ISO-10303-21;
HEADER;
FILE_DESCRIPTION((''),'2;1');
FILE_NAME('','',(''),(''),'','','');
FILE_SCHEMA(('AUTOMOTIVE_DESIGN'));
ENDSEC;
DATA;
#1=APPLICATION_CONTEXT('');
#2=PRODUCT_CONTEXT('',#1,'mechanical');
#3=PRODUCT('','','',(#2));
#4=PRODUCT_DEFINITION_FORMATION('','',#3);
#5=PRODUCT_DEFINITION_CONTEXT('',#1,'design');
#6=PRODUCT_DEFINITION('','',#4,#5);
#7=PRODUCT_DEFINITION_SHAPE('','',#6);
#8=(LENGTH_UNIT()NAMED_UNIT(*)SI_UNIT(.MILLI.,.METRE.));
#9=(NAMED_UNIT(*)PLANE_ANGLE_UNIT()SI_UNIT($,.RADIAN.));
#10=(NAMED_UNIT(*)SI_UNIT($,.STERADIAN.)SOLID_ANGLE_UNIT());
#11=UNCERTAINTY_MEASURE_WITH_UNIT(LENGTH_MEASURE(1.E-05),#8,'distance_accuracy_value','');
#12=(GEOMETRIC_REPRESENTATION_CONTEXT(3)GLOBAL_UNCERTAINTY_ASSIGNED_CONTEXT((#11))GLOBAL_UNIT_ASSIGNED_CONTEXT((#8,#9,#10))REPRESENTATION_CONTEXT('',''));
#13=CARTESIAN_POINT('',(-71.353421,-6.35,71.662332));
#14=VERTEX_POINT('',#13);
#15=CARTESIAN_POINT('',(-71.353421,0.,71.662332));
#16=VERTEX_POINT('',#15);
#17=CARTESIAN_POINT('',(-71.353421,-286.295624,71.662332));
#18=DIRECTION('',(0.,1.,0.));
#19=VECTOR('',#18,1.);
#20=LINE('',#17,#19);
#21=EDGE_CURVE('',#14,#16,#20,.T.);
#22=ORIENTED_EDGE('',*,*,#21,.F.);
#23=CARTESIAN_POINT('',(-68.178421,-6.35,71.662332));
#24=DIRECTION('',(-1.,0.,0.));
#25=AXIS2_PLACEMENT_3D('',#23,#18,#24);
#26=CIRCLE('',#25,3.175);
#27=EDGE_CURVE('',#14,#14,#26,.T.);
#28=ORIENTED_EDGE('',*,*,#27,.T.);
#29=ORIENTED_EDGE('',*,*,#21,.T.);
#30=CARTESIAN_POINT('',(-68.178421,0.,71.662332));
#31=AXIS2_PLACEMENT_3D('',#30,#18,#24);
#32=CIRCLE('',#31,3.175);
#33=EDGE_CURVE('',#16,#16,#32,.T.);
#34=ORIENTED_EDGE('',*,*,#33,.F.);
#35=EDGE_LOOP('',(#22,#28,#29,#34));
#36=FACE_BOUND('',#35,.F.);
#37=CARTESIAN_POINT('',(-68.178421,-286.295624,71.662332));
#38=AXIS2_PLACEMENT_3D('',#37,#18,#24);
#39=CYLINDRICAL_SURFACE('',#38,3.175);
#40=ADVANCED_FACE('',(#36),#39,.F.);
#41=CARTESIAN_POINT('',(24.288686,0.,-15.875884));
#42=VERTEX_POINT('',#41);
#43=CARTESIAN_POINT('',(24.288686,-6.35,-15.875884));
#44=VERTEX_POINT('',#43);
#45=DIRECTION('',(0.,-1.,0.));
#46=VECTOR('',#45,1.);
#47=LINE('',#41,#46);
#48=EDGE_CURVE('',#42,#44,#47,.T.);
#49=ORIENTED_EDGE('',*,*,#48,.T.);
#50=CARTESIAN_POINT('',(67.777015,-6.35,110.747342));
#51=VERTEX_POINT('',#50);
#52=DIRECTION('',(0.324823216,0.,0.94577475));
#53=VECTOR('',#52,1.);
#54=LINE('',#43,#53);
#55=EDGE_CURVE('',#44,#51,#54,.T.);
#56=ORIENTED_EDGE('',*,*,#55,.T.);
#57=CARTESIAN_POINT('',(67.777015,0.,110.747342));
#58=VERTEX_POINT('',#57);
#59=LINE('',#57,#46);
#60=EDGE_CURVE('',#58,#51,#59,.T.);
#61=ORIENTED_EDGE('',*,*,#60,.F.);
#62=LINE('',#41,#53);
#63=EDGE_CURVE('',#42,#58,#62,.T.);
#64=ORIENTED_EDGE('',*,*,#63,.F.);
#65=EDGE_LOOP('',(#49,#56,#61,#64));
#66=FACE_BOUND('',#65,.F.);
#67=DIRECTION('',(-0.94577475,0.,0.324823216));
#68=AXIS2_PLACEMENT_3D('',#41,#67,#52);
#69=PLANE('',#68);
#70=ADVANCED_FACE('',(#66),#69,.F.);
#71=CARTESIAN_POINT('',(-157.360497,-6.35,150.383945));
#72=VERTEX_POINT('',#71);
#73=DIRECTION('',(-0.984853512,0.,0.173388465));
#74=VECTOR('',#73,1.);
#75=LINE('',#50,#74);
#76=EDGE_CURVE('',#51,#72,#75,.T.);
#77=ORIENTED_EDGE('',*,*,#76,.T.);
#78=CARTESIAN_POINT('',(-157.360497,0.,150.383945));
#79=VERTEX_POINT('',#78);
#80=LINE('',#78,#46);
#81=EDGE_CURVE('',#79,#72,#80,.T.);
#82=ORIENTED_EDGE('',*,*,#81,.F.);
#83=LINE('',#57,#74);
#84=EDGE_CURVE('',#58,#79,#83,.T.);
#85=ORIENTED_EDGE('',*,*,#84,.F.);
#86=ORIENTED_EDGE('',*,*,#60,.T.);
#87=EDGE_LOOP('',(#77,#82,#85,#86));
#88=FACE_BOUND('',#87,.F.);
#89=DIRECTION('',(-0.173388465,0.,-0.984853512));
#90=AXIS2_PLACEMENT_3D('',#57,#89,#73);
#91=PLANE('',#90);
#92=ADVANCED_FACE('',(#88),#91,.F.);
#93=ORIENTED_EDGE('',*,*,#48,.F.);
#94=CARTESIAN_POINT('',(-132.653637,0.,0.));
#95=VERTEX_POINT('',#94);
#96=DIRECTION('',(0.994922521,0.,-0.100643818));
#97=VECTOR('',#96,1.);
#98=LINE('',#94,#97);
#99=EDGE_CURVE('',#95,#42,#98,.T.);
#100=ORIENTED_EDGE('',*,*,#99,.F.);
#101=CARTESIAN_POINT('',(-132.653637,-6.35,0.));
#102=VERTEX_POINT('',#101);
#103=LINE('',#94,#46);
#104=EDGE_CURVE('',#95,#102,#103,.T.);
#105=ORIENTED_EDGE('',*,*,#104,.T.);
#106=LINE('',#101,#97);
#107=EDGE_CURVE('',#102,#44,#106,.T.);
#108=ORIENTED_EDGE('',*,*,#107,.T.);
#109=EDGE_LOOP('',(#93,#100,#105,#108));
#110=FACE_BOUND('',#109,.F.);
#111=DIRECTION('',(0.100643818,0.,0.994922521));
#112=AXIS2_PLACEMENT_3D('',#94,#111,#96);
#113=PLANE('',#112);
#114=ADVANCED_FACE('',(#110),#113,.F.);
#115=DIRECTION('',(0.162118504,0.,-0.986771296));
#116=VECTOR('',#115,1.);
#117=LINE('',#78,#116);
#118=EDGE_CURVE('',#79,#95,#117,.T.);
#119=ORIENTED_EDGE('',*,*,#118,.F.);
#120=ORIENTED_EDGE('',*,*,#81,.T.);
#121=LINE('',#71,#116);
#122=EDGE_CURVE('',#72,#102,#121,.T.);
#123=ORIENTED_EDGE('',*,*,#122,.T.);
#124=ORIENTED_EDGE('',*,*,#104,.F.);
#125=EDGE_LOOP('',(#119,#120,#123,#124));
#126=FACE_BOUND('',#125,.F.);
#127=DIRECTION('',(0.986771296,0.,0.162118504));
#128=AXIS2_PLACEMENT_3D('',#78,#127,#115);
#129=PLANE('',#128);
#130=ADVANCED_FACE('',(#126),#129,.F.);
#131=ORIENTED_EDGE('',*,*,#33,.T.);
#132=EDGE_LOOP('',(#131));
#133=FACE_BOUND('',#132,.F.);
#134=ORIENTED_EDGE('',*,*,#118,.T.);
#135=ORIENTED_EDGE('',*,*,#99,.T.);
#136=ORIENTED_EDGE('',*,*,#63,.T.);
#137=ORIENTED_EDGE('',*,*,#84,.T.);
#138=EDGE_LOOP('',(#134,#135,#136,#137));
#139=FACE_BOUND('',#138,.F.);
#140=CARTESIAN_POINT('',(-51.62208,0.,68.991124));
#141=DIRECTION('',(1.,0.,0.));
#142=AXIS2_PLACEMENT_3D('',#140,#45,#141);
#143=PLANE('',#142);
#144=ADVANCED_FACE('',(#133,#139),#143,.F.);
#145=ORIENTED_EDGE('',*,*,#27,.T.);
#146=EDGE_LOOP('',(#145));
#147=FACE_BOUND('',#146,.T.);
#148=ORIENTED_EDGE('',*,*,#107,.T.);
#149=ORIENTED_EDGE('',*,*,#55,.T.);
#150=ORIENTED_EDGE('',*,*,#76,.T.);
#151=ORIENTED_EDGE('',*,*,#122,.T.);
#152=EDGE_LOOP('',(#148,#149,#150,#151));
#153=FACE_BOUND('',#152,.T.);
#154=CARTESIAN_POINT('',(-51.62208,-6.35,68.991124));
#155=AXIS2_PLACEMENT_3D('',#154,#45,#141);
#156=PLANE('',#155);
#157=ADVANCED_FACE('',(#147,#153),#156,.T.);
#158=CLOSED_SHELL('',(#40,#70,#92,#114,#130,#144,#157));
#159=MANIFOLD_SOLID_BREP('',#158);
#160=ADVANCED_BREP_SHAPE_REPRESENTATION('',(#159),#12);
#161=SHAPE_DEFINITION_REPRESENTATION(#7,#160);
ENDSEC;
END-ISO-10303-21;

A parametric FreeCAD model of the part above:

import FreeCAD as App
import Part
import Sketcher

V = App.Vector
Q = App.Units.Quantity


def add_polygon(sketch, points):
    """Adds a closed chain of lines whose ends are joined by coincident constraints."""
    first, n = sketch.GeometryCount, len(points)
    for a, b in zip(points, points[1:] + points[:1]):
        sketch.addGeometry(Part.LineSegment(App.Vector(*a, 0), App.Vector(*b, 0)), False)
    for i in range(n):
        sketch.addConstraint(Sketcher.Constraint("Coincident", first + i, 2, first + (i + 1) % n, 1))

doc = App.newDocument("Part")
params = doc.addObject("Spreadsheet::Sheet", "Params")
for row, (alias, value) in enumerate([
    ("sketch1_length", "9 in"),
    ("sketch1_length2", "6 in"),
    ("pad1_length", "0.25 in"),
    ("sketch2_diameter", "0.25 in"),
    ("hole_diameter", "0.25 in"),
], start=1):
    params.set(f"A{row}", alias)
    params.set(f"B{row}", "=" + value)
    params.setAlias(f"B{row}", alias)

body = doc.addObject("PartDesign::Body", "Body")

sketch1 = body.newObject("Sketcher::SketchObject", "Sketch")
sketch1.AttachmentSupport = (doc.getObject("XZ_Plane"), [""])
sketch1.MapMode = "FlatFace"
add_polygon(sketch1, [(68, 111), (-157, 150), (-133, 0), (24, -16)])
sketch1.addConstraint(Sketcher.Constraint("PointOnObject", 1, 2, -1))
sketch1.addConstraint(Sketcher.Constraint("Distance", 0, Q("9 in")))
sketch1.addConstraint(Sketcher.Constraint("Distance", 1, Q("6 in")))
sketch1.addConstraint(Sketcher.Constraint("Distance", 2, 157.743261))
sketch1.addConstraint(Sketcher.Constraint("Distance", 3, 133.883069))
sketch1.addConstraint(Sketcher.Constraint("DistanceX", 0, 2, 1, 2, 24.70686))
sketch1.addConstraint(Sketcher.Constraint("DistanceY", 2, 2, 0, 2, 166.259829))
sketch1.addConstraint(Sketcher.Constraint("DistanceX", 0, 2, -1, 1, 157.360497))
sketch1.setExpression("Constraints[5]", "Params.sketch1_length")
sketch1.setExpression("Constraints[6]", "Params.sketch1_length2")
pad1 = body.newObject("PartDesign::Pad", "Pad")
pad1.Profile = sketch1
pad1.setExpression("Length", "Params.pad1_length")

sketch2 = body.newObject("Sketcher::SketchObject", "Sketch001")
sketch2.AttachmentSupport = (doc.getObject("XZ_Plane"), [""])
sketch2.MapMode = "FlatFace"
sketch2.AttachmentOffset = App.Placement(V(0, 0, 0.25 * 25.4), App.Rotation())
sketch2.addGeometry(Part.Circle(V(-68.2, 71.7, 0), V(0, 0, 1), 3.2), False)
sketch2.addConstraint(Sketcher.Constraint("Diameter", 0, Q("0.25 in")))
sketch2.addConstraint(Sketcher.Constraint("DistanceX", 0, 3, -1, 1, 68.178421))
sketch2.addConstraint(Sketcher.Constraint("DistanceY", -1, 1, 0, 3, 71.662332))
sketch2.setExpression("Constraints[0]", "Params.sketch2_diameter")
doc.recompute()
hole = body.newObject("PartDesign::Hole", "Hole")
hole.Profile = sketch2
hole.ThreadType = "None"
hole.setExpression("Diameter", "Params.hole_diameter")
hole.DepthType = "ThroughAll"

doc.recompute()
